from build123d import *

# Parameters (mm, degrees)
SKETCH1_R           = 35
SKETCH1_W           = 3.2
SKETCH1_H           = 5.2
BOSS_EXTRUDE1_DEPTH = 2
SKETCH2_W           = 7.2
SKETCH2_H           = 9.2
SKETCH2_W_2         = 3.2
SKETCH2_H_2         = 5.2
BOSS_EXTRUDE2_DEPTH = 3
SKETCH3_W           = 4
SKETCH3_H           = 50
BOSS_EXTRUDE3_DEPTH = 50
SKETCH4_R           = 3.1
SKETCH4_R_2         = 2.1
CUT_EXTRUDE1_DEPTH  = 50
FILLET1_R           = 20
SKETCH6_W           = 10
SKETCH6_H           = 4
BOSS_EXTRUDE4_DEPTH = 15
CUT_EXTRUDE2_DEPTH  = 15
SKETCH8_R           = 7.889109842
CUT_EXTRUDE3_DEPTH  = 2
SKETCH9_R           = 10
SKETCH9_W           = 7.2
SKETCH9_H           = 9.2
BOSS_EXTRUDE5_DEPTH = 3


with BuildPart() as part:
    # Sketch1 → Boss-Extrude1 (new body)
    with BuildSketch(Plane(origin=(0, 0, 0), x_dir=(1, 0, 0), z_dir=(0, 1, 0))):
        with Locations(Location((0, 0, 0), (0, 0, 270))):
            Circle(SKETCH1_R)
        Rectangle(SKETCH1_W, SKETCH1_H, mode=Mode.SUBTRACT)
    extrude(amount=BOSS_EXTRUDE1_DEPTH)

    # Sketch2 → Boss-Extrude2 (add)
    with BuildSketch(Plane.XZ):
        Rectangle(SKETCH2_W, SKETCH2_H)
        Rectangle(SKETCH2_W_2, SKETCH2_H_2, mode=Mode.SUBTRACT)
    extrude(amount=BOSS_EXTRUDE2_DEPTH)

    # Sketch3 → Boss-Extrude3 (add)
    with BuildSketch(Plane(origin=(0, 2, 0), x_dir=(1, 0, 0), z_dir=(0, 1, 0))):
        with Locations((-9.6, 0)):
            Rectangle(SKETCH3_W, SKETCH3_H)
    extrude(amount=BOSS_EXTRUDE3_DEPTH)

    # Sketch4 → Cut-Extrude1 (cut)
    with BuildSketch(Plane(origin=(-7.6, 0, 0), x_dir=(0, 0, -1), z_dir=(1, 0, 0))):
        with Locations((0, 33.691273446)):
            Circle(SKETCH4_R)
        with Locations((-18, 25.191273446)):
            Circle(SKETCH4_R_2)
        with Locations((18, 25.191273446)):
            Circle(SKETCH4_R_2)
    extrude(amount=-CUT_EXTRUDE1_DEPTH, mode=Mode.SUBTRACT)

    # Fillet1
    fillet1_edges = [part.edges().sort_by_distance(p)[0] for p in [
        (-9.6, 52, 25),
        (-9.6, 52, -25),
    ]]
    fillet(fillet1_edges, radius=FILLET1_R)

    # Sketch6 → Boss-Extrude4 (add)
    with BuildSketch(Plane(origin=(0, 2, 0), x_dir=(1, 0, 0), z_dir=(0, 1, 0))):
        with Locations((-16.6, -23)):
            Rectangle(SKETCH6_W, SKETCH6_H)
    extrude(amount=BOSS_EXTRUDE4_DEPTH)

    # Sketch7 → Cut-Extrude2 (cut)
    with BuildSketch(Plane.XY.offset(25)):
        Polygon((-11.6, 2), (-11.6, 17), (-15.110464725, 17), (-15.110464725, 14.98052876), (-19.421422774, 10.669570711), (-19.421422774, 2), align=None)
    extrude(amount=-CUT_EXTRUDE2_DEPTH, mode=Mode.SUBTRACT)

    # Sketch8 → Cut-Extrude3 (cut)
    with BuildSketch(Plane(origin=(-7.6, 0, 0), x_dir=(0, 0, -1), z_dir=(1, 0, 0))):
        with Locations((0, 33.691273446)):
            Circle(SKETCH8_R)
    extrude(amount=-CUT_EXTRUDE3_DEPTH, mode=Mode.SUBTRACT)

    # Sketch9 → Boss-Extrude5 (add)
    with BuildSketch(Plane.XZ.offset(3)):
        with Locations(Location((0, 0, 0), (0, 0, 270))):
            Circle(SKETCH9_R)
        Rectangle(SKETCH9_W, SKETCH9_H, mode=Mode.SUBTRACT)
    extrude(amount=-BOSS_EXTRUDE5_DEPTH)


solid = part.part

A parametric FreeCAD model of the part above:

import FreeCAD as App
import Part
import Sketcher
Q = App.Units.Quantity


def edges_at(feature, points):
    """Names of the edges that pass closest to the given points."""
    edges = feature.Shape.Edges
    near = lambda p: min(range(len(edges)), key=lambda i: edges[i].distToShape(Part.Vertex(*p))[0])
    return sorted({f"Edge{near(p) + 1}" for p in points})

doc = App.newDocument("Part")
body = doc.addObject("PartDesign::Body", "Body")

# Sketch on XZ plane
sketch1 = body.newObject("Sketcher::SketchObject", "Sketch")
sketch1.AttachmentSupport = (doc.getObject("XZ_Plane"), [""])
sketch1.MapMode = "FlatFace"
sketch1.addGeometry(Part.Circle(App.Vector(0, 0, 0), App.Vector(0, 0, 1), 35), False)
sketch1.addGeometry(Part.LineSegment(App.Vector(1.6, 2.6, 0), App.Vector(-1.6, 2.6, 0)), False)
sketch1.addGeometry(Part.LineSegment(App.Vector(-1.6, 2.6, 0), App.Vector(-1.6, -2.6, 0)), False)
sketch1.addGeometry(Part.LineSegment(App.Vector(-1.6, -2.6, 0), App.Vector(1.6, -2.6, 0)), False)
sketch1.addGeometry(Part.LineSegment(App.Vector(1.6, -2.6, 0), App.Vector(1.6, 2.6, 0)), False)
sketch1.addConstraint(Sketcher.Constraint("Coincident", 1, 2, 2, 1))
sketch1.addConstraint(Sketcher.Constraint("Coincident", 2, 2, 3, 1))
sketch1.addConstraint(Sketcher.Constraint("Coincident", 3, 2, 4, 1))
sketch1.addConstraint(Sketcher.Constraint("Coincident", 4, 2, 1, 1))
sketch1.addConstraint(Sketcher.Constraint("Horizontal", 1))
sketch1.addConstraint(Sketcher.Constraint("Vertical", 2))
sketch1.addConstraint(Sketcher.Constraint("Horizontal", 3))
sketch1.addConstraint(Sketcher.Constraint("Vertical", 4))
sketch1.addConstraint(Sketcher.Constraint("Coincident", 0, 3, -1, 1))
sketch1.addConstraint(Sketcher.Constraint("Symmetric", 1, 2, 3, 2, -1, 1))
sketch1.addConstraint(Sketcher.Constraint("Diameter", 0, Q("70 mm")))
sketch1.addConstraint(Sketcher.Constraint("DistanceX", 1, 2, 1, 1, Q("3.2 mm")))
sketch1.addConstraint(Sketcher.Constraint("DistanceY", 2, 2, 2, 1, Q("5.2 mm")))
pad1 = body.newObject("PartDesign::Pad", "Pad")
pad1.Profile = sketch1
pad1.Length = 2
pad1.Reversed = True

# Sketch on XZ plane
sketch2 = body.newObject("Sketcher::SketchObject", "Sketch001")
sketch2.AttachmentSupport = (doc.getObject("XZ_Plane"), [""])
sketch2.MapMode = "FlatFace"
sketch2.addGeometry(Part.LineSegment(App.Vector(-3.6, 4.6, 0), App.Vector(-3.6, -4.6, 0)), False)
sketch2.addGeometry(Part.LineSegment(App.Vector(-3.6, -4.6, 0), App.Vector(3.6, -4.6, 0)), False)
sketch2.addGeometry(Part.LineSegment(App.Vector(3.6, -4.6, 0), App.Vector(3.6, 4.6, 0)), False)
sketch2.addGeometry(Part.LineSegment(App.Vector(3.6, 4.6, 0), App.Vector(-3.6, 4.6, 0)), False)
sketch2.addGeometry(Part.LineSegment(App.Vector(1.6, -2.6, 0), App.Vector(-1.6, -2.6, 0)), False)
sketch2.addGeometry(Part.LineSegment(App.Vector(-1.6, -2.6, 0), App.Vector(-1.6, 2.6, 0)), False)
sketch2.addGeometry(Part.LineSegment(App.Vector(-1.6, 2.6, 0), App.Vector(1.6, 2.6, 0)), False)
sketch2.addGeometry(Part.LineSegment(App.Vector(1.6, 2.6, 0), App.Vector(1.6, -2.6, 0)), False)
sketch2.addConstraint(Sketcher.Constraint("Coincident", 0, 2, 1, 1))
sketch2.addConstraint(Sketcher.Constraint("Coincident", 1, 2, 2, 1))
sketch2.addConstraint(Sketcher.Constraint("Coincident", 2, 2, 3, 1))
sketch2.addConstraint(Sketcher.Constraint("Coincident", 3, 2, 0, 1))
sketch2.addConstraint(Sketcher.Constraint("Coincident", 4, 2, 5, 1))
sketch2.addConstraint(Sketcher.Constraint("Coincident", 5, 2, 6, 1))
sketch2.addConstraint(Sketcher.Constraint("Coincident", 6, 2, 7, 1))
sketch2.addConstraint(Sketcher.Constraint("Coincident", 7, 2, 4, 1))
sketch2.addConstraint(Sketcher.Constraint("Vertical", 0))
sketch2.addConstraint(Sketcher.Constraint("Horizontal", 1))
sketch2.addConstraint(Sketcher.Constraint("Vertical", 2))
sketch2.addConstraint(Sketcher.Constraint("Horizontal", 3))
sketch2.addConstraint(Sketcher.Constraint("Horizontal", 4))
sketch2.addConstraint(Sketcher.Constraint("Vertical", 5))
sketch2.addConstraint(Sketcher.Constraint("Horizontal", 6))
sketch2.addConstraint(Sketcher.Constraint("Vertical", 7))
sketch2.addConstraint(Sketcher.Constraint("Symmetric", 0, 2, 2, 2, -1, 1))
sketch2.addConstraint(Sketcher.Constraint("Symmetric", 4, 2, 6, 2, -1, 1))
sketch2.addConstraint(Sketcher.Constraint("DistanceX", 1, 1, 1, 2, Q("7.2 mm")))
sketch2.addConstraint(Sketcher.Constraint("DistanceX", 4, 2, 4, 1, Q("3.2 mm")))
sketch2.addConstraint(Sketcher.Constraint("DistanceY", 0, 2, 0, 1, Q("9.2 mm")))
sketch2.addConstraint(Sketcher.Constraint("DistanceY", 5, 1, 5, 2, Q("5.2 mm")))
pad2 = body.newObject("PartDesign::Pad", "Pad001")
pad2.Profile = sketch2
pad2.Length = 3

# Sketch on XZ plane
sketch3 = body.newObject("Sketcher::SketchObject", "Sketch002")
sketch3.AttachmentSupport = (doc.getObject("XZ_Plane"), [""])
sketch3.MapMode = "FlatFace"
sketch3.AttachmentOffset = App.Placement(App.Vector(0, 0, -2), App.Rotation())
sketch3.addGeometry(Part.LineSegment(App.Vector(-11.6, -25, 0), App.Vector(-11.6, 25, 0)), False)
sketch3.addGeometry(Part.LineSegment(App.Vector(-11.6, 25, 0), App.Vector(-7.6, 25, 0)), False)
sketch3.addGeometry(Part.LineSegment(App.Vector(-7.6, 25, 0), App.Vector(-7.6, -25, 0)), False)
sketch3.addGeometry(Part.LineSegment(App.Vector(-7.6, -25, 0), App.Vector(-11.6, -25, 0)), False)
sketch3.addConstraint(Sketcher.Constraint("Coincident", 0, 2, 1, 1))
sketch3.addConstraint(Sketcher.Constraint("Coincident", 1, 2, 2, 1))
sketch3.addConstraint(Sketcher.Constraint("Coincident", 2, 2, 3, 1))
sketch3.addConstraint(Sketcher.Constraint("Coincident", 3, 2, 0, 1))
sketch3.addConstraint(Sketcher.Constraint("Vertical", 0))
sketch3.addConstraint(Sketcher.Constraint("Horizontal", 1))
sketch3.addConstraint(Sketcher.Constraint("Vertical", 2))
sketch3.addConstraint(Sketcher.Constraint("Horizontal", 3))
sketch3.addConstraint(Sketcher.Constraint("DistanceX", 1, 1, 1, 2, Q("4 mm")))
sketch3.addConstraint(Sketcher.Constraint("DistanceY", 0, 1, 0, 2, Q("50 mm")))
sketch3.addConstraint(Sketcher.Constraint("DistanceY", -1, 1, 0, 2, Q("25 mm")))
sketch3.addConstraint(Sketcher.Constraint("DistanceX", 0, 2, -1, 1, Q("11.6 mm")))
pad3 = body.newObject("PartDesign::Pad", "Pad002")
pad3.Profile = sketch3
pad3.Length = 50
pad3.Reversed = True

# Sketch on YZ plane
sketch4 = body.newObject("Sketcher::SketchObject", "Sketch003")
sketch4.AttachmentSupport = (doc.getObject("YZ_Plane"), [""])
sketch4.MapMode = "FlatFace"
sketch4.AttachmentOffset = App.Placement(App.Vector(0, 0, -7.6), App.Rotation())
sketch4.addGeometry(Part.Circle(App.Vector(33.7, 0, 0), App.Vector(0, 0, 1), 3.1), False)
sketch4.addGeometry(Part.Circle(App.Vector(25.2, 18, 0), App.Vector(0, 0, 1), 2.1), False)
sketch4.addGeometry(Part.Circle(App.Vector(25.2, -18, 0), App.Vector(0, 0, 1), 2.1), False)
sketch4.addConstraint(Sketcher.Constraint("Equal", 1, 2))
sketch4.addConstraint(Sketcher.Constraint("Symmetric", 1, 3, 2, 3, -1))
sketch4.addConstraint(Sketcher.Constraint("PointOnObject", 0, 3, -1))
sketch4.addConstraint(Sketcher.Constraint("Diameter", 0, Q("6.2 mm")))
sketch4.addConstraint(Sketcher.Constraint("Diameter", 1, Q("4.2 mm")))
sketch4.addConstraint(Sketcher.Constraint("DistanceY", -1, 1, 1, 3, Q("18 mm")))
sketch4.addConstraint(Sketcher.Constraint("DistanceX", 1, 3, 0, 3, Q("8.5 mm")))
sketch4.addConstraint(Sketcher.Constraint("DistanceX", -1, 1, 0, 3, Q("33.691273 mm")))
pocket1 = body.newObject("PartDesign::Pocket", "Pocket")
pocket1.Profile = sketch4
pocket1.Length = 50
doc.recompute()

fillet = body.newObject("PartDesign::Fillet", "Fillet")
fillet.Base = (pocket1, edges_at(pocket1, [(-9.6, 52, 25), (-9.6, 52, -25)]))
fillet.Radius = 20

# Sketch on XZ plane
sketch5 = body.newObject("Sketcher::SketchObject", "Sketch004")
sketch5.AttachmentSupport = (doc.getObject("XZ_Plane"), [""])
sketch5.MapMode = "FlatFace"
sketch5.AttachmentOffset = App.Placement(App.Vector(0, 0, -2), App.Rotation())
sketch5.addGeometry(Part.LineSegment(App.Vector(-21.6, 21, 0), App.Vector(-21.6, 25, 0)), False)
sketch5.addGeometry(Part.LineSegment(App.Vector(-21.6, 25, 0), App.Vector(-11.6, 25, 0)), False)
sketch5.addGeometry(Part.LineSegment(App.Vector(-11.6, 25, 0), App.Vector(-11.6, 21, 0)), False)
sketch5.addGeometry(Part.LineSegment(App.Vector(-11.6, 21, 0), App.Vector(-21.6, 21, 0)), False)
sketch5.addConstraint(Sketcher.Constraint("Coincident", 0, 2, 1, 1))
sketch5.addConstraint(Sketcher.Constraint("Coincident", 1, 2, 2, 1))
sketch5.addConstraint(Sketcher.Constraint("Coincident", 2, 2, 3, 1))
sketch5.addConstraint(Sketcher.Constraint("Coincident", 3, 2, 0, 1))
sketch5.addConstraint(Sketcher.Constraint("Vertical", 0))
sketch5.addConstraint(Sketcher.Constraint("Horizontal", 1))
sketch5.addConstraint(Sketcher.Constraint("Vertical", 2))
sketch5.addConstraint(Sketcher.Constraint("Horizontal", 3))
sketch5.addConstraint(Sketcher.Constraint("DistanceX", 1, 1, 1, 2, Q("10 mm")))
sketch5.addConstraint(Sketcher.Constraint("DistanceY", 0, 1, 0, 2, Q("4 mm")))
sketch5.addConstraint(Sketcher.Constraint("DistanceY", -1, 1, 0, 2, Q("25 mm")))
sketch5.addConstraint(Sketcher.Constraint("DistanceX", 0, 2, -1, 1, Q("21.6 mm")))
pad4 = body.newObject("PartDesign::Pad", "Pad003")
pad4.Profile = sketch5
pad4.Length = 15
pad4.Reversed = True

# Sketch on XY plane
sketch6 = body.newObject("Sketcher::SketchObject", "Sketch005")
sketch6.AttachmentSupport = (doc.getObject("XY_Plane"), [""])
sketch6.MapMode = "FlatFace"
sketch6.AttachmentOffset = App.Placement(App.Vector(0, 0, 25), App.Rotation())
sketch6.addGeometry(Part.LineSegment(App.Vector(-11.6, 2, 0), App.Vector(-11.6, 17, 0)), False)
sketch6.addGeometry(Part.LineSegment(App.Vector(-11.6, 17, 0), App.Vector(-15.1, 17, 0)), False)
sketch6.addGeometry(Part.LineSegment(App.Vector(-15.1, 17, 0), App.Vector(-15.1, 15, 0)), False)
sketch6.addGeometry(Part.LineSegment(App.Vector(-15.1, 15, 0), App.Vector(-19.4, 10.7, 0)), False)
sketch6.addGeometry(Part.LineSegment(App.Vector(-19.4, 10.7, 0), App.Vector(-19.4, 2, 0)), False)
sketch6.addGeometry(Part.LineSegment(App.Vector(-19.4, 2, 0), App.Vector(-11.6, 2, 0)), False)
sketch6.addConstraint(Sketcher.Constraint("Coincident", 0, 2, 1, 1))
sketch6.addConstraint(Sketcher.Constraint("Coincident", 1, 2, 2, 1))
sketch6.addConstraint(Sketcher.Constraint("Coincident", 2, 2, 3, 1))
sketch6.addConstraint(Sketcher.Constraint("Coincident", 3, 2, 4, 1))
sketch6.addConstraint(Sketcher.Constraint("Coincident", 4, 2, 5, 1))
sketch6.addConstraint(Sketcher.Constraint("Coincident", 5, 2, 0, 1))
sketch6.addConstraint(Sketcher.Constraint("Vertical", 0))
sketch6.addConstraint(Sketcher.Constraint("Horizontal", 1))
sketch6.addConstraint(Sketcher.Constraint("Vertical", 2))
sketch6.addConstraint(Sketcher.Constraint("Vertical", 4))
sketch6.addConstraint(Sketcher.Constraint("Horizontal", 5))
sketch6.addConstraint(Sketcher.Constraint("DistanceY", 0, 1, 0, 2, Q("15 mm")))
sketch6.addConstraint(Sketcher.Constraint("Angle", 3, Q("-135 deg")))
sketch6.addConstraint(Sketcher.Constraint("DistanceY", -1, 1, 0, 2, Q("17 mm")))
sketch6.addConstraint(Sketcher.Constraint("DistanceX", 0, 2, -1, 1, Q("11.6 mm")))
sketch6.addConstraint(Sketcher.Constraint("DistanceY", 2, 2, 2, 1, Q("2.019471 mm")))
sketch6.addConstraint(Sketcher.Constraint("DistanceY", 4, 2, 4, 1, Q("8.669571 mm")))
sketch6.addConstraint(Sketcher.Constraint("DistanceX", 1, 2, 1, 1, Q("3.510465 mm")))
pocket2 = body.newObject("PartDesign::Pocket", "Pocket001")
pocket2.Profile = sketch6
pocket2.Length = 15

# Sketch on YZ plane
sketch7 = body.newObject("Sketcher::SketchObject", "Sketch006")
sketch7.AttachmentSupport = (doc.getObject("YZ_Plane"), [""])
sketch7.MapMode = "FlatFace"
sketch7.AttachmentOffset = App.Placement(App.Vector(0, 0, -7.6), App.Rotation())
sketch7.addGeometry(Part.Circle(App.Vector(34, 0, 0), App.Vector(0, 0, 1), 8), False)
sketch7.addConstraint(Sketcher.Constraint("PointOnObject", 0, 3, -1))
sketch7.addConstraint(Sketcher.Constraint("Diameter", 0, Q("15.77822 mm")))
sketch7.addConstraint(Sketcher.Constraint("DistanceX", -1, 1, 0, 3, Q("33.691273 mm")))
pocket3 = body.newObject("PartDesign::Pocket", "Pocket002")
pocket3.Profile = sketch7
pocket3.Length = 2

# Sketch on XZ plane
sketch8 = body.newObject("Sketcher::SketchObject", "Sketch007")
sketch8.AttachmentSupport = (doc.getObject("XZ_Plane"), [""])
sketch8.MapMode = "FlatFace"
sketch8.AttachmentOffset = App.Placement(App.Vector(0, 0, 3), App.Rotation())
sketch8.addGeometry(Part.Circle(App.Vector(0, 0, 0), App.Vector(0, 0, 1), 10), False)
sketch8.addGeometry(Part.LineSegment(App.Vector(4, -5, 0), App.Vector(-4, -5, 0)), False)
sketch8.addGeometry(Part.LineSegment(App.Vector(-4, -5, 0), App.Vector(-4, 5, 0)), False)
sketch8.addGeometry(Part.LineSegment(App.Vector(-4, 5, 0), App.Vector(4, 5, 0)), False)
sketch8.addGeometry(Part.LineSegment(App.Vector(4, 5, 0), App.Vector(4, -5, 0)), False)
sketch8.addConstraint(Sketcher.Constraint("Coincident", 1, 2, 2, 1))
sketch8.addConstraint(Sketcher.Constraint("Coincident", 2, 2, 3, 1))
sketch8.addConstraint(Sketcher.Constraint("Coincident", 3, 2, 4, 1))
sketch8.addConstraint(Sketcher.Constraint("Coincident", 4, 2, 1, 1))
sketch8.addConstraint(Sketcher.Constraint("Horizontal", 1))
sketch8.addConstraint(Sketcher.Constraint("Vertical", 2))
sketch8.addConstraint(Sketcher.Constraint("Horizontal", 3))
sketch8.addConstraint(Sketcher.Constraint("Vertical", 4))
sketch8.addConstraint(Sketcher.Constraint("Coincident", 0, 3, -1, 1))
sketch8.addConstraint(Sketcher.Constraint("Symmetric", 1, 2, 3, 2, -1, 1))
sketch8.addConstraint(Sketcher.Constraint("Diameter", 0, Q("20 mm")))
sketch8.addConstraint(Sketcher.Constraint("DistanceX", 1, 2, 1, 1, Q("7.2 mm")))
sketch8.addConstraint(Sketcher.Constraint("DistanceY", 2, 1, 2, 2, Q("9.2 mm")))
pad5 = body.newObject("PartDesign::Pad", "Pad004")
pad5.Profile = sketch8
pad5.Length = 3
pad5.Reversed = True

doc.recompute()
